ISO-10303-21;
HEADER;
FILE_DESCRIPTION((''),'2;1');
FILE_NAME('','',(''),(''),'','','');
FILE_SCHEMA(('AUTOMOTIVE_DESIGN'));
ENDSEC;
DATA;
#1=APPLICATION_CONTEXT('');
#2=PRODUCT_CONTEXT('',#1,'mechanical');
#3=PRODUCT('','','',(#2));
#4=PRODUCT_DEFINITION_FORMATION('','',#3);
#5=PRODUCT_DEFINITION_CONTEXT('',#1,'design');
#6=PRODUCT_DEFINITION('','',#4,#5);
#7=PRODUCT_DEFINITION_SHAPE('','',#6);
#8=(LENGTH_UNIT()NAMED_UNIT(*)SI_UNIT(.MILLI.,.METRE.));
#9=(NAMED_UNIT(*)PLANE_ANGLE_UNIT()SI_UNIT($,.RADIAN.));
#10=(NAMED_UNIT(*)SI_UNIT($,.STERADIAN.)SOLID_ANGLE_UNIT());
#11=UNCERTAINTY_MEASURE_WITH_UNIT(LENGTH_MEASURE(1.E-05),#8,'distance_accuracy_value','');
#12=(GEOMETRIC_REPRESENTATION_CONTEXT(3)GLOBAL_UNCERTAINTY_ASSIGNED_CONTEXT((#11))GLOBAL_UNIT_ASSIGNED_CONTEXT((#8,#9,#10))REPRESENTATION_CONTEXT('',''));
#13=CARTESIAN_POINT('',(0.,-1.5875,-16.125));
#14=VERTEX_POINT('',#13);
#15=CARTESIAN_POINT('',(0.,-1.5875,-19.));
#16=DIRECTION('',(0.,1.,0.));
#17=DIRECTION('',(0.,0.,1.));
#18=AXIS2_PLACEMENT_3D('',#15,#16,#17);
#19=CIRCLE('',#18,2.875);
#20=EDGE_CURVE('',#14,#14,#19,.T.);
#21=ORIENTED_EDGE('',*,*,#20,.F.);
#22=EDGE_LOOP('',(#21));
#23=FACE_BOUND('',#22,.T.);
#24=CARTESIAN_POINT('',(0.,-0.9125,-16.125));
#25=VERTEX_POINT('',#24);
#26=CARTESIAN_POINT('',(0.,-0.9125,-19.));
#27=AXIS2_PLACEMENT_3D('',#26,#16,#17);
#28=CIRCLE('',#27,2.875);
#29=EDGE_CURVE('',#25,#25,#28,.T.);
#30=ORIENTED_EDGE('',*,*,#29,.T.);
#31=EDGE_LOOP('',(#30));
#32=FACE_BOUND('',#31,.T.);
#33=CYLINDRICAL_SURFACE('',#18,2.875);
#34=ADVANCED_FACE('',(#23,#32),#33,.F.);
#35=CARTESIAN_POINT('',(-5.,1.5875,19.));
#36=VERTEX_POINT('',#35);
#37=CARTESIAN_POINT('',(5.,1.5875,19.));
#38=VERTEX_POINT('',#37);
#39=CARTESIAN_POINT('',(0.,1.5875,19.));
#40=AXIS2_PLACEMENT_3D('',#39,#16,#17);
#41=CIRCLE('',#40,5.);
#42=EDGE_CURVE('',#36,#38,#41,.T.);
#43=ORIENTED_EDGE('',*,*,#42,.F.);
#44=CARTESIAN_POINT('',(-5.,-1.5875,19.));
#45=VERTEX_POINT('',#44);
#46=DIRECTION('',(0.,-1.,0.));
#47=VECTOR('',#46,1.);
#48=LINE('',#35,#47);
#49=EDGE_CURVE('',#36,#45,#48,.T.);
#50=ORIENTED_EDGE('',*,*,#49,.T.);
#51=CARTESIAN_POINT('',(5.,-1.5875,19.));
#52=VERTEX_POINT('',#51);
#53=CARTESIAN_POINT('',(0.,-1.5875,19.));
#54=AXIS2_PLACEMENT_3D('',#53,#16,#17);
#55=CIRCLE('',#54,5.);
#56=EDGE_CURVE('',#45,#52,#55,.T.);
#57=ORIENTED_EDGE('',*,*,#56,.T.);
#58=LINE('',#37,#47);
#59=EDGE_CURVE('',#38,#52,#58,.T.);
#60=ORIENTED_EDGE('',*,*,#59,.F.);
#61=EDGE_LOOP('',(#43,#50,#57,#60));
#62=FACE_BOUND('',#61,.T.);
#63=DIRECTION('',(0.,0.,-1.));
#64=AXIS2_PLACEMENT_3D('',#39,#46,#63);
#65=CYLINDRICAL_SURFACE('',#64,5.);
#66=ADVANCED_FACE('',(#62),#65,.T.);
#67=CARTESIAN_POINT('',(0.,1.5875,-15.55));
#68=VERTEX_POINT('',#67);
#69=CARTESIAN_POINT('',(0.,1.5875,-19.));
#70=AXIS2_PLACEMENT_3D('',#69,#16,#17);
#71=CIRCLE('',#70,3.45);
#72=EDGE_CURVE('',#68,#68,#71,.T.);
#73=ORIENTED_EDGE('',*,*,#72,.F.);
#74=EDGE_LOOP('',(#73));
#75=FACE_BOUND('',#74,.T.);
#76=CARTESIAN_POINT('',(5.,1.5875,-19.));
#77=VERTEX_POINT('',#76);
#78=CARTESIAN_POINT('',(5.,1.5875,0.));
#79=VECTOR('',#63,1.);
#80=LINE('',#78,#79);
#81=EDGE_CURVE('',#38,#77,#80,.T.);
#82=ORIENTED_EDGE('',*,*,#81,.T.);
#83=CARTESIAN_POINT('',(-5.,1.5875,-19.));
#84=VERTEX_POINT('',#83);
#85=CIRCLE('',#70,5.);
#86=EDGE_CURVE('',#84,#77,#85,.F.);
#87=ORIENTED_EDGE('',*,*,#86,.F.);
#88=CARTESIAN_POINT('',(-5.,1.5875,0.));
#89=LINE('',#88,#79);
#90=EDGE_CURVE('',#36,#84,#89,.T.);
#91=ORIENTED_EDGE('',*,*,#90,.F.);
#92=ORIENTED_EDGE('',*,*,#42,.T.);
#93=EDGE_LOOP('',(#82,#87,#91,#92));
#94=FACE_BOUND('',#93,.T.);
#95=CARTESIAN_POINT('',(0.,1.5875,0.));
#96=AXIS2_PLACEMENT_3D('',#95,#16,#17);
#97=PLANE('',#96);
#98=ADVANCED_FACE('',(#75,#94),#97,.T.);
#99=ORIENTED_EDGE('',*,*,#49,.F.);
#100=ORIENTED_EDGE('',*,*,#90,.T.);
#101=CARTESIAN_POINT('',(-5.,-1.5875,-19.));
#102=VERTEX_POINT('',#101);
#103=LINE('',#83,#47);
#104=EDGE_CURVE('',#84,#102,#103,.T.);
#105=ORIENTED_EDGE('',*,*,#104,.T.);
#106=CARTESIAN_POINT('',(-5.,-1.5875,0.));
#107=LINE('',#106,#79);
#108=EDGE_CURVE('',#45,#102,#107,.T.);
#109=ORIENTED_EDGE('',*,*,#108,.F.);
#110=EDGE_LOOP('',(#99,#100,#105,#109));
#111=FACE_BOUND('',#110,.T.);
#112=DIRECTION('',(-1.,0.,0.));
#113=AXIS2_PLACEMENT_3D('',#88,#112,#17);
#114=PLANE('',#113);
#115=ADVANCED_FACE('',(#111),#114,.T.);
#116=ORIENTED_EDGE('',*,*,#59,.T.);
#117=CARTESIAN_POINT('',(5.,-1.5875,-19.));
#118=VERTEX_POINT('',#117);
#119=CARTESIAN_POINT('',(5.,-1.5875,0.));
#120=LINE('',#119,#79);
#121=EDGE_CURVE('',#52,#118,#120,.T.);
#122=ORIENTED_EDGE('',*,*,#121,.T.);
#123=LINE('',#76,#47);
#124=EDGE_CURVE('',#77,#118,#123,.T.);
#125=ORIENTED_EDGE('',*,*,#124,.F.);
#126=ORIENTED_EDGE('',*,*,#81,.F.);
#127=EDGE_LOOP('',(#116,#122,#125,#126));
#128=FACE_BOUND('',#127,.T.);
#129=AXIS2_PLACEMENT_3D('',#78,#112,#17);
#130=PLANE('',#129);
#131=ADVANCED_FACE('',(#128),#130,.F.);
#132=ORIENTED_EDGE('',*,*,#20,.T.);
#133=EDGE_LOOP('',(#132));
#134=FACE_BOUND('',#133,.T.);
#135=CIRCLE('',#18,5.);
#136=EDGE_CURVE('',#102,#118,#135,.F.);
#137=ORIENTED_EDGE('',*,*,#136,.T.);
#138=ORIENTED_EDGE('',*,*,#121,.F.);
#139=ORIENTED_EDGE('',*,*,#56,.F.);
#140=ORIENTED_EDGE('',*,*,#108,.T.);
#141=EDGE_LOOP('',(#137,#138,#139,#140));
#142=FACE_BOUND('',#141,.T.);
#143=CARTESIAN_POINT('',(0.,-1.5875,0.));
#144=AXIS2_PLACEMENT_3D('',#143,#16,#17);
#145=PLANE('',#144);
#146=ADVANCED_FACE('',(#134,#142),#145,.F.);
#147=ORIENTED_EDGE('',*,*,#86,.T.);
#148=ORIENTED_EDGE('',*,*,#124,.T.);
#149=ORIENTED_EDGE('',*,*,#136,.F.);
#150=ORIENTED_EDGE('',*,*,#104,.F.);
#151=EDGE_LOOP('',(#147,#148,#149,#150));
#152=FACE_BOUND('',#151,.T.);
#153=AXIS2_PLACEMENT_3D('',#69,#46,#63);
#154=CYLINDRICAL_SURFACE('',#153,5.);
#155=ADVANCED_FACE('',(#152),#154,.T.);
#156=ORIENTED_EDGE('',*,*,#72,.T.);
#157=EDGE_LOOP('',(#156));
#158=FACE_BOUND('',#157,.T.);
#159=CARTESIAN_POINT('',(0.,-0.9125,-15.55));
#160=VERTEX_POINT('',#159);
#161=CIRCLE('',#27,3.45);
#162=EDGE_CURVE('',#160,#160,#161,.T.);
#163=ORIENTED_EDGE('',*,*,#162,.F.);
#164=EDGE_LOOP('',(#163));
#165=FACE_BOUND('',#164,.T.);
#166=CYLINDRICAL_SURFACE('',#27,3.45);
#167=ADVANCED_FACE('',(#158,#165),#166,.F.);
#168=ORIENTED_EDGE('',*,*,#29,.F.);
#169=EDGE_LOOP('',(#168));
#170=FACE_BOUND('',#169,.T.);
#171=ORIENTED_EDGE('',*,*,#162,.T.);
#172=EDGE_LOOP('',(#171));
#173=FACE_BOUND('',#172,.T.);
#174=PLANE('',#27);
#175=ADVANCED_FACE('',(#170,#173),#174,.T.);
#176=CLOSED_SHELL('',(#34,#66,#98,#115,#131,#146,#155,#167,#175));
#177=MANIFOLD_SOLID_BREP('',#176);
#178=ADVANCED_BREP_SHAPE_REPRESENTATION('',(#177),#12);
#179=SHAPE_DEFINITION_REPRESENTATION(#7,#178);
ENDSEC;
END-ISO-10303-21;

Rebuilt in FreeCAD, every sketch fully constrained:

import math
import FreeCAD as App
import Part
import Sketcher

doc = App.newDocument("Part")
body = doc.addObject("PartDesign::Body", "Body")

sketch1 = doc.addObject("Sketcher::SketchObject", "Sketch")
body.addObject(sketch1)
sketch1.AttachmentSupport = (doc.XZ_Plane, [""])
sketch1.MapMode = "FlatFace"
sketch1.addGeometry([
    Part.ArcOfCircle(Part.Circle(App.Vector(0, -19, 0), App.Vector(0, 0, 1), 5), math.radians(180), math.radians(360)),
    Part.LineSegment(App.Vector(-5, -19, 0), App.Vector(-5, 19, 0)),
    Part.ArcOfCircle(Part.Circle(App.Vector(0, 19, 0), App.Vector(0, 0, 1), 5), math.radians(0), math.radians(180)),
    Part.LineSegment(App.Vector(5, 19, 0), App.Vector(5, -19, 0)),
], False)
sketch1.addConstraint([
    Sketcher.Constraint("Tangent", 0, 1, 1, 1),
    Sketcher.Constraint("Tangent", 1, 2, 2, 2),
    Sketcher.Constraint("Tangent", 2, 1, 3, 1),
    Sketcher.Constraint("Tangent", 3, 2, 0, 2),
    Sketcher.Constraint("Vertical", 1),
    Sketcher.Constraint("Vertical", 3),
    Sketcher.Constraint("Symmetric", 0, 3, 2, 3, -1, 1),
    Sketcher.Constraint("Radius", 0, 5.0),
    Sketcher.Constraint("DistanceY", 1, 1, 1, 2, 38.0),
])
pad1 = doc.addObject("PartDesign::Pad", "Pad")
body.addObject(pad1)
pad1.Profile = sketch1
pad1.Length = 3.175
pad1.Midplane = True

sketch2 = doc.addObject("Sketcher::SketchObject", "Sketch001")
body.addObject(sketch2)
sketch2.AttachmentSupport = (doc.XZ_Plane, [""])
sketch2.MapMode = "FlatFace"
sketch2.AttachmentOffset = App.Placement(App.Vector(0, 0, -1.5875), App.Rotation())
sketch2.addGeometry(Part.Circle(App.Vector(0, -19, 0), App.Vector(0, 0, 1), 3.45), False)
sketch2.addConstraint([
    Sketcher.Constraint("PointOnObject", 0, 3, -2),
    Sketcher.Constraint("Diameter", 0, 6.9),
    Sketcher.Constraint("DistanceY", 0, 3, -1, 1, 19.0),
])
pocket1 = doc.addObject("PartDesign::Pocket", "Pocket")
body.addObject(pocket1)
pocket1.Profile = sketch2
pocket1.Length = 2.5
pocket1.Reversed = True

sketch3 = doc.addObject("Sketcher::SketchObject", "Sketch002")
body.addObject(sketch3)
sketch3.AttachmentSupport = (doc.XZ_Plane, [""])
sketch3.MapMode = "FlatFace"
sketch3.AttachmentOffset = App.Placement(App.Vector(0, 0, 0.9125), App.Rotation())
sketch3.addGeometry(Part.Circle(App.Vector(0, -19, 0), App.Vector(0, 0, 1), 2.875), False)
sketch3.addConstraint([
    Sketcher.Constraint("PointOnObject", 0, 3, -2),
    Sketcher.Constraint("Diameter", 0, 5.75),
    Sketcher.Constraint("DistanceY", 0, 3, -1, 1, 19.0),
])
pocket2 = doc.addObject("PartDesign::Pocket", "Pocket001")
body.addObject(pocket2)
pocket2.Profile = sketch3
pocket2.Type = "ThroughAll"
pocket2.Reversed = True

doc.recompute()
